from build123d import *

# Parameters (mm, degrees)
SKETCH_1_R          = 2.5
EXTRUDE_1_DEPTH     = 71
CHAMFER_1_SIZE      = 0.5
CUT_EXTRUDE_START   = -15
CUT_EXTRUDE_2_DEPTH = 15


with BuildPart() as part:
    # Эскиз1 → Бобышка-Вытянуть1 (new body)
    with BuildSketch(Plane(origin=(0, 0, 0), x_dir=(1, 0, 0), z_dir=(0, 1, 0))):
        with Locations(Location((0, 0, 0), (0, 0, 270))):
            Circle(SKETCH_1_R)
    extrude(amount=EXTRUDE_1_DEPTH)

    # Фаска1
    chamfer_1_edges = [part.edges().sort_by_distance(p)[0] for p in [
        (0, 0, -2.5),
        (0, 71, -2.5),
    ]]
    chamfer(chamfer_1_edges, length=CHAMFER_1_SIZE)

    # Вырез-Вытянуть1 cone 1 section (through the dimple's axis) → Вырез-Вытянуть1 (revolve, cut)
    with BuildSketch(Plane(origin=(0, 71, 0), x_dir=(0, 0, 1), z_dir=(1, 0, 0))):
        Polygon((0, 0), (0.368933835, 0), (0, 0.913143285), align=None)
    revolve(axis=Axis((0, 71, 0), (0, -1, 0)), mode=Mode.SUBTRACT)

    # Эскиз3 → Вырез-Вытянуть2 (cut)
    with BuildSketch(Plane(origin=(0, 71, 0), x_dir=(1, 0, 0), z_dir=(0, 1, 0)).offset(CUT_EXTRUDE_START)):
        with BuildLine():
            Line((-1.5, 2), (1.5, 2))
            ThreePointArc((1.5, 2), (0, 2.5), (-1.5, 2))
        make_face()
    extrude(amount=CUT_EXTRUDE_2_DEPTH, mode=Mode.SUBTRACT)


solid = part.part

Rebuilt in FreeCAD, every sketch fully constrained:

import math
import FreeCAD as App
import Part
import Sketcher
Q = App.Units.Quantity


def edges_at(feature, points):
    """Names of the edges that pass closest to the given points."""
    edges = feature.Shape.Edges
    near = lambda p: min(range(len(edges)), key=lambda i: edges[i].distToShape(Part.Vertex(*p))[0])
    return sorted({f"Edge{near(p) + 1}" for p in points})

doc = App.newDocument("Part")
body = doc.addObject("PartDesign::Body", "Body")

sketch1 = body.newObject("Sketcher::SketchObject", "Sketch")
sketch1.AttachmentSupport = (doc.getObject("XZ_Plane"), [""])
sketch1.MapMode = "FlatFace"
sketch1.addGeometry(Part.Circle(App.Vector(0, 0, 0), App.Vector(0, 0, 1), 2.5), False)
sketch1.addConstraint(Sketcher.Constraint("Coincident", 0, 3, -1, 1))
sketch1.addConstraint(Sketcher.Constraint("Diameter", 0, 5.0))
pad1 = body.newObject("PartDesign::Pad", "Pad")
pad1.Profile = sketch1
pad1.Length = 71
pad1.Reversed = True
doc.recompute()

chamfer = body.newObject("PartDesign::Chamfer", "Chamfer")
chamfer.Base = (pad1, edges_at(pad1, [(0, 0, -2.5), (0, 71, -2.5)]))
chamfer.Size = 0.5

sketch2 = body.newObject("Sketcher::SketchObject", "Sketch001")
sketch2.AttachmentSupport = (doc.getObject("YZ_Plane"), [""])
sketch2.MapMode = "FlatFace"
sketch2.addGeometry(Part.LineSegment(App.Vector(71, 0, 0), App.Vector(71, 0.37, 0)), False)
sketch2.addGeometry(Part.LineSegment(App.Vector(71, 0.37, 0), App.Vector(70.09, 0, 0)), False)
sketch2.addGeometry(Part.LineSegment(App.Vector(70.09, 0, 0), App.Vector(71, 0, 0)), False)
sketch2.addConstraint(Sketcher.Constraint("Coincident", 0, 2, 1, 1))
sketch2.addConstraint(Sketcher.Constraint("Coincident", 1, 2, 2, 1))
sketch2.addConstraint(Sketcher.Constraint("Coincident", 2, 2, 0, 1))
sketch2.addConstraint(Sketcher.Constraint("Vertical", 0))
sketch2.addConstraint(Sketcher.Constraint("Horizontal", 2))
sketch2.addConstraint(Sketcher.Constraint("PointOnObject", 1, 2, -1))
sketch2.addConstraint(Sketcher.Constraint("Angle", 1, Q("-158 deg")))
sketch2.addConstraint(Sketcher.Constraint("DistanceX", -1, 1, 0, 2, 71.0))
sketch2.addConstraint(Sketcher.Constraint("DistanceX", 2, 1, 2, 2, 0.913143))
groove = body.newObject("PartDesign::Groove", "Groove")
groove.Profile = sketch2
groove.ReferenceAxis = (sketch2, ["H_Axis"])
groove.Angle = 360

sketch3 = body.newObject("Sketcher::SketchObject", "Sketch002")
sketch3.AttachmentSupport = (doc.getObject("XZ_Plane"), [""])
sketch3.MapMode = "FlatFace"
sketch3.AttachmentOffset = App.Placement(App.Vector(0, 0, -56), App.Rotation())
sketch3.addGeometry(Part.LineSegment(App.Vector(-1.5, -2, 0), App.Vector(1.5, -2, 0)), False)
sketch3.addGeometry(Part.ArcOfCircle(Part.Circle(App.Vector(0, 0, 0), App.Vector(0, 0, 1), 2.5), math.radians(-127), math.radians(-53)), False)
sketch3.addConstraint(Sketcher.Constraint("Coincident", 0, 1, 1, 1))
sketch3.addConstraint(Sketcher.Constraint("Coincident", 1, 2, 0, 2))
sketch3.addConstraint(Sketcher.Constraint("Horizontal", 0))
sketch3.addConstraint(Sketcher.Constraint("Coincident", 1, 3, -1, 1))
sketch3.addConstraint(Sketcher.Constraint("Radius", 1, 2.5))
sketch3.addConstraint(Sketcher.Constraint("DistanceX", 0, 1, 0, 2, 3.0))
pocket1 = body.newObject("PartDesign::Pocket", "Pocket")
pocket1.Profile = sketch3
pocket1.Length = 15

doc.recompute()
